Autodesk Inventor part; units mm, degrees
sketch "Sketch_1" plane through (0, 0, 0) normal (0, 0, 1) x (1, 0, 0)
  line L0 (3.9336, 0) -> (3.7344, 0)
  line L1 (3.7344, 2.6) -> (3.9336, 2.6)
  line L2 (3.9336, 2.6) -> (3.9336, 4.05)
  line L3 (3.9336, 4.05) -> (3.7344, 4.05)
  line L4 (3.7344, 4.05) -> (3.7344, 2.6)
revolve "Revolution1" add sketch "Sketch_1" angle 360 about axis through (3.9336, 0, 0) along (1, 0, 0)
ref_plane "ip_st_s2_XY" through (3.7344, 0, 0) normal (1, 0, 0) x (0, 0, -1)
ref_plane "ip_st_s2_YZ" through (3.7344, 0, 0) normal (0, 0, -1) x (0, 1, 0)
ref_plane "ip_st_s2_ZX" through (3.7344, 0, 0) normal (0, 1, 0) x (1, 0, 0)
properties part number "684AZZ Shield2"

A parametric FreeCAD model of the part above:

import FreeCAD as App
import Part
import Sketcher

doc = App.newDocument("Part")
body = doc.addObject("PartDesign::Body", "Body")

# Sketch on XY plane
sketch1 = body.newObject("Sketcher::SketchObject", "Sketch")
sketch1.AttachmentSupport = (doc.getObject("XY_Plane"), [""])
sketch1.MapMode = "FlatFace"
sketch1.addGeometry([
    Part.LineSegment(App.Vector(3.7344, 4.05, 0), App.Vector(3.7344, 2.6, 0)),
    Part.LineSegment(App.Vector(3.7344, 2.6, 0), App.Vector(3.9336, 2.6, 0)),
    Part.LineSegment(App.Vector(3.9336, 2.6, 0), App.Vector(3.9336, 4.05, 0)),
    Part.LineSegment(App.Vector(3.9336, 4.05, 0), App.Vector(3.7344, 4.05, 0)),
], False)
sketch1.addConstraint([
    Sketcher.Constraint("Coincident", 0, 2, 1, 1),
    Sketcher.Constraint("Coincident", 1, 2, 2, 1),
    Sketcher.Constraint("Coincident", 2, 2, 3, 1),
    Sketcher.Constraint("Coincident", 3, 2, 0, 1),
    Sketcher.Constraint("Vertical", 0),
    Sketcher.Constraint("Horizontal", 1),
    Sketcher.Constraint("Vertical", 2),
    Sketcher.Constraint("Horizontal", 3),
    Sketcher.Constraint("DistanceY", 0, 2, 0, 1, 1.45),
    Sketcher.Constraint("DistanceY", -1, 1, 0, 2, 2.6),
    Sketcher.Constraint("DistanceX", 1, 1, 1, 2, 0.1992),
    Sketcher.Constraint("DistanceX", -1, 1, 0, 2, 3.7344),
])
revolution = body.newObject("PartDesign::Revolution", "Revolution")
revolution.Profile = sketch1
revolution.ReferenceAxis = (sketch1, ["H_Axis"])
revolution.Angle = 360

doc.recompute()
